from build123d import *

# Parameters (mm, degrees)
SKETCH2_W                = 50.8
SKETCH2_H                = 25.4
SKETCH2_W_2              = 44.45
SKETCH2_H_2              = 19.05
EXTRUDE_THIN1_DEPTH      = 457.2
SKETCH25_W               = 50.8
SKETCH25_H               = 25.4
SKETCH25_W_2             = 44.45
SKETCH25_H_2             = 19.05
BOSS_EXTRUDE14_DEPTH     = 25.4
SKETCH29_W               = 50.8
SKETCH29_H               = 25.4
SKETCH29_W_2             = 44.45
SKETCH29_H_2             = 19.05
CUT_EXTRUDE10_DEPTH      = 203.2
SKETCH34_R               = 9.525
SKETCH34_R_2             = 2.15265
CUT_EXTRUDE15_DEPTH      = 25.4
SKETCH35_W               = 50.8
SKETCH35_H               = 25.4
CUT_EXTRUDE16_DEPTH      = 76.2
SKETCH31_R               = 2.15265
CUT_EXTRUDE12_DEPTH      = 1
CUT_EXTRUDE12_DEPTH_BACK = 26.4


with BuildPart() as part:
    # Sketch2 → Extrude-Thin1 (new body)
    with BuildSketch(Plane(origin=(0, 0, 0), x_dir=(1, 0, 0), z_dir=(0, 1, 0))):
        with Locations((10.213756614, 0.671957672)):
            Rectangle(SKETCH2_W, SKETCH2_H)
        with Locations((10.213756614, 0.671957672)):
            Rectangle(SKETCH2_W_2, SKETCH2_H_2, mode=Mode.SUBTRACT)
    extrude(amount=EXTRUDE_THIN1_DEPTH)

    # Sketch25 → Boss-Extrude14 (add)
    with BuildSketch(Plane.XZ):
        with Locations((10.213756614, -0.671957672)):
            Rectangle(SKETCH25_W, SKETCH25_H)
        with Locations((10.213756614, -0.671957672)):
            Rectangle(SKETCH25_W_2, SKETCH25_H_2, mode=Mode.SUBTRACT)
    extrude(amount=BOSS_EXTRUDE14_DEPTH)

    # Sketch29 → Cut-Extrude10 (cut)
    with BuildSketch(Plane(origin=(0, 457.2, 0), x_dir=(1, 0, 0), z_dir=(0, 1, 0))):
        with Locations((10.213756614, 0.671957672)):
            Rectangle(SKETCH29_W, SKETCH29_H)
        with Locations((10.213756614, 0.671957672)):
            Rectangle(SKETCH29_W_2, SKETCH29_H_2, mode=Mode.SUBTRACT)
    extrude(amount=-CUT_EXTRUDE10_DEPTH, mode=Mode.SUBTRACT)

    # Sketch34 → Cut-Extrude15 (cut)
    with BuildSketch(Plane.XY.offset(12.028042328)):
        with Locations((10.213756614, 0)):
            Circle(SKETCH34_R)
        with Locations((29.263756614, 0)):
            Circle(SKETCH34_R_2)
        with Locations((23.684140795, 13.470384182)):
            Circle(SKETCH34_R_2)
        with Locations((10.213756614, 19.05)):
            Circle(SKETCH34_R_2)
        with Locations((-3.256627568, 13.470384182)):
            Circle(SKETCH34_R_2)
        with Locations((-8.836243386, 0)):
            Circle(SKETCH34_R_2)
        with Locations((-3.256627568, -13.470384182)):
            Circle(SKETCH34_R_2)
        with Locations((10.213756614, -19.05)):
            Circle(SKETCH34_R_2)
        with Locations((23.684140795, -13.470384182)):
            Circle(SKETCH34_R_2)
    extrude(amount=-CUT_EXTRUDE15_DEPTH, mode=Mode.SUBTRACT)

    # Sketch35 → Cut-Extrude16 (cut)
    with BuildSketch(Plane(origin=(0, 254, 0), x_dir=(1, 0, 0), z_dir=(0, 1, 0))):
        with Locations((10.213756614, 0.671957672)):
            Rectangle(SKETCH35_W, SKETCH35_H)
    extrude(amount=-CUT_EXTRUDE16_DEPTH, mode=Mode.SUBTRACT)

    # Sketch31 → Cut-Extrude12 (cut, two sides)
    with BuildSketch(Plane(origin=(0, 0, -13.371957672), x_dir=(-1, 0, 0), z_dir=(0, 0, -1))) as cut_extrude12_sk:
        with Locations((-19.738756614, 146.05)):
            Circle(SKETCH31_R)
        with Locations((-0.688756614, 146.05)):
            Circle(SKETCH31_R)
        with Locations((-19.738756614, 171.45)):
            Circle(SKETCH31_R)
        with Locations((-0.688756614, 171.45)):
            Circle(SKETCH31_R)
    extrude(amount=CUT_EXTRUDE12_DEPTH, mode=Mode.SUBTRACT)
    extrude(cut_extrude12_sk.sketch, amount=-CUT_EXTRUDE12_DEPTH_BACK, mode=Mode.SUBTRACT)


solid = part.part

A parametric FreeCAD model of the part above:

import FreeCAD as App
import Part
import Sketcher

V = App.Vector
Q = App.Units.Quantity


def add_polygon(sketch, points):
    """Adds a closed chain of lines whose ends are joined by coincident constraints."""
    first, n = sketch.GeometryCount, len(points)
    for a, b in zip(points, points[1:] + points[:1]):
        sketch.addGeometry(Part.LineSegment(App.Vector(*a, 0), App.Vector(*b, 0)), False)
    for i in range(n):
        sketch.addConstraint(Sketcher.Constraint("Coincident", first + i, 2, first + (i + 1) % n, 1))

doc = App.newDocument("Part")
body = doc.addObject("PartDesign::Body", "Body")

# Sketch on XZ plane
sketch1 = body.newObject("Sketcher::SketchObject", "Sketch")
sketch1.AttachmentSupport = (doc.getObject("XZ_Plane"), [""])
sketch1.MapMode = "FlatFace"
add_polygon(sketch1, [(-15.186243, -13.371958), (-15.186243, 12.028042), (35.613757, 12.028042), (35.613757, -13.371958)])  # lines 0-3
add_polygon(sketch1, [(32.438757, 8.853042), (-12.011243, 8.853042), (-12.011243, -10.196958), (32.438757, -10.196958)])  # lines 4-7
sketch1.addConstraint(Sketcher.Constraint("Vertical", 0))
sketch1.addConstraint(Sketcher.Constraint("Horizontal", 1))
sketch1.addConstraint(Sketcher.Constraint("Vertical", 2))
sketch1.addConstraint(Sketcher.Constraint("Horizontal", 3))
sketch1.addConstraint(Sketcher.Constraint("Horizontal", 4))
sketch1.addConstraint(Sketcher.Constraint("Vertical", 5))
sketch1.addConstraint(Sketcher.Constraint("Horizontal", 6))
sketch1.addConstraint(Sketcher.Constraint("Vertical", 7))
sketch1.addConstraint(Sketcher.Constraint("DistanceX", 1, 1, 1, 2, Q("2 in")))
sketch1.addConstraint(Sketcher.Constraint("DistanceY", 0, 1, 0, 2, Q("1 in")))
sketch1.addConstraint(Sketcher.Constraint("DistanceX", 4, 2, 4, 1, Q("1.75 in")))
sketch1.addConstraint(Sketcher.Constraint("DistanceY", 5, 2, 5, 1, Q("0.75 in")))
sketch1.addConstraint(Sketcher.Constraint("DistanceX", 0, 2, 4, 2, Q("0.125 in")))
sketch1.addConstraint(Sketcher.Constraint("DistanceY", 4, 2, 0, 2, Q("0.125 in")))
sketch1.addConstraint(Sketcher.Constraint("DistanceX", 0, 2, -1, 1, 15.186243))
sketch1.addConstraint(Sketcher.Constraint("DistanceY", -1, 1, 0, 2, 12.028042))
pad1 = body.newObject("PartDesign::Pad", "Pad")
pad1.Profile = sketch1
pad1.Length = Q("18 in")
pad1.Reversed = True

# Sketch on XZ plane
sketch2 = body.newObject("Sketcher::SketchObject", "Sketch001")
sketch2.AttachmentSupport = (doc.getObject("XZ_Plane"), [""])
sketch2.MapMode = "FlatFace"
add_polygon(sketch2, [(-15.186243, 12.028042), (-15.186243, -13.371958), (35.613757, -13.371958), (35.613757, 12.028042)])  # lines 0-3
add_polygon(sketch2, [(32.438757, -10.196958), (-12.011243, -10.196958), (-12.011243, 8.853042), (32.438757, 8.853042)])  # lines 4-7
sketch2.addConstraint(Sketcher.Constraint("Vertical", 0))
sketch2.addConstraint(Sketcher.Constraint("Horizontal", 1))
sketch2.addConstraint(Sketcher.Constraint("Vertical", 2))
sketch2.addConstraint(Sketcher.Constraint("Horizontal", 3))
sketch2.addConstraint(Sketcher.Constraint("Horizontal", 4))
sketch2.addConstraint(Sketcher.Constraint("Vertical", 5))
sketch2.addConstraint(Sketcher.Constraint("Horizontal", 6))
sketch2.addConstraint(Sketcher.Constraint("Vertical", 7))
sketch2.addConstraint(Sketcher.Constraint("DistanceX", 1, 1, 1, 2, Q("2 in")))
sketch2.addConstraint(Sketcher.Constraint("DistanceY", 0, 2, 0, 1, Q("1 in")))
sketch2.addConstraint(Sketcher.Constraint("DistanceX", 4, 2, 4, 1, Q("1.75 in")))
sketch2.addConstraint(Sketcher.Constraint("DistanceY", 5, 1, 5, 2, Q("0.75 in")))
sketch2.addConstraint(Sketcher.Constraint("DistanceX", 0, 2, 4, 2, Q("0.125 in")))
sketch2.addConstraint(Sketcher.Constraint("DistanceY", 0, 2, 4, 2, Q("0.125 in")))
sketch2.addConstraint(Sketcher.Constraint("DistanceX", 0, 2, -1, 1, 15.186243))
sketch2.addConstraint(Sketcher.Constraint("DistanceY", 0, 2, -1, 1, 13.371958))
pad2 = body.newObject("PartDesign::Pad", "Pad001")
pad2.Profile = sketch2
pad2.Length = Q("1 in")

# Sketch on XZ plane
sketch3 = body.newObject("Sketcher::SketchObject", "Sketch002")
sketch3.AttachmentSupport = (doc.getObject("XZ_Plane"), [""])
sketch3.MapMode = "FlatFace"
sketch3.AttachmentOffset = App.Placement(V(0, 0, -18 * 25.4), App.Rotation())
add_polygon(sketch3, [(-15.186243, -13.371958), (-15.186243, 12.028042), (35.613757, 12.028042), (35.613757, -13.371958)])  # lines 0-3
add_polygon(sketch3, [(32.438757, 8.853042), (-12.011243, 8.853042), (-12.011243, -10.196958), (32.438757, -10.196958)])  # lines 4-7
sketch3.addConstraint(Sketcher.Constraint("Vertical", 0))
sketch3.addConstraint(Sketcher.Constraint("Horizontal", 1))
sketch3.addConstraint(Sketcher.Constraint("Vertical", 2))
sketch3.addConstraint(Sketcher.Constraint("Horizontal", 3))
sketch3.addConstraint(Sketcher.Constraint("Horizontal", 4))
sketch3.addConstraint(Sketcher.Constraint("Vertical", 5))
sketch3.addConstraint(Sketcher.Constraint("Horizontal", 6))
sketch3.addConstraint(Sketcher.Constraint("Vertical", 7))
sketch3.addConstraint(Sketcher.Constraint("DistanceX", 1, 1, 1, 2, Q("2 in")))
sketch3.addConstraint(Sketcher.Constraint("DistanceY", 0, 1, 0, 2, Q("1 in")))
sketch3.addConstraint(Sketcher.Constraint("DistanceX", 4, 2, 4, 1, Q("1.75 in")))
sketch3.addConstraint(Sketcher.Constraint("DistanceY", 5, 2, 5, 1, Q("0.75 in")))
sketch3.addConstraint(Sketcher.Constraint("DistanceX", 0, 2, 4, 2, Q("0.125 in")))
sketch3.addConstraint(Sketcher.Constraint("DistanceY", 4, 2, 0, 2, Q("0.125 in")))
sketch3.addConstraint(Sketcher.Constraint("DistanceX", 0, 2, -1, 1, 15.186243))
sketch3.addConstraint(Sketcher.Constraint("DistanceY", -1, 1, 0, 2, 12.028042))
pocket1 = body.newObject("PartDesign::Pocket", "Pocket")
pocket1.Profile = sketch3
pocket1.Length = Q("8 in")
pocket1.Reversed = True

# Sketch on XY plane
sketch4 = body.newObject("Sketcher::SketchObject", "Sketch003")
sketch4.AttachmentSupport = (doc.getObject("XY_Plane"), [""])
sketch4.MapMode = "FlatFace"
sketch4.AttachmentOffset = App.Placement(V(0, 0, 12.028042), App.Rotation())
sketch4.addGeometry(Part.Circle(V(10.213757, 0, 0), V(0, 0, 1), 9.525), False)
sketch4.addGeometry(Part.Circle(V(29.263757, 0, 0), V(0, 0, 1), 2.15265), False)
sketch4.addGeometry(Part.Circle(V(23.684141, 13.470384, 0), V(0, 0, 1), 2.15265), False)
sketch4.addGeometry(Part.Circle(V(10.213757, 19.05, 0), V(0, 0, 1), 2.15265), False)
sketch4.addGeometry(Part.Circle(V(-3.256628, 13.470384, 0), V(0, 0, 1), 2.15265), False)
sketch4.addGeometry(Part.Circle(V(-8.836243, 0, 0), V(0, 0, 1), 2.15265), False)
sketch4.addGeometry(Part.Circle(V(-3.256628, -13.470384, 0), V(0, 0, 1), 2.15265), False)
sketch4.addGeometry(Part.Circle(V(10.213757, -19.05, 0), V(0, 0, 1), 2.15265), False)
sketch4.addGeometry(Part.Circle(V(23.684141, -13.470384, 0), V(0, 0, 1), 2.15265), False)
sketch4.addConstraint(Sketcher.Constraint("Equal", 1, 2))
sketch4.addConstraint(Sketcher.Constraint("Equal", 2, 3))
sketch4.addConstraint(Sketcher.Constraint("Equal", 3, 4))
sketch4.addConstraint(Sketcher.Constraint("Equal", 4, 5))
sketch4.addConstraint(Sketcher.Constraint("Equal", 5, 6))
sketch4.addConstraint(Sketcher.Constraint("Equal", 6, 7))
sketch4.addConstraint(Sketcher.Constraint("Equal", 7, 8))
sketch4.addConstraint(Sketcher.Constraint("Symmetric", 4, 3, 6, 3, -1))
sketch4.addConstraint(Sketcher.Constraint("Symmetric", 3, 3, 7, 3, -1))
sketch4.addConstraint(Sketcher.Constraint("Symmetric", 2, 3, 8, 3, -1))
sketch4.addConstraint(Sketcher.Constraint("PointOnObject", 0, 3, -1))
sketch4.addConstraint(Sketcher.Constraint("PointOnObject", 1, 3, -1))
sketch4.addConstraint(Sketcher.Constraint("PointOnObject", 5, 3, -1))
sketch4.addConstraint(Sketcher.Constraint("Horizontal", 2, 3, 4, 3))
sketch4.addConstraint(Sketcher.Constraint("Vertical", 0, 3, 3, 3))
sketch4.addConstraint(Sketcher.Constraint("Diameter", 0, Q("0.75 in")))
sketch4.addConstraint(Sketcher.Constraint("Diameter", 1, Q("0.1695 in")))
sketch4.addConstraint(Sketcher.Constraint("DistanceX", 5, 3, 1, 3, Q("1.5 in")))
sketch4.addConstraint(Sketcher.Constraint("DistanceY", -1, 1, 3, 3, Q("0.75 in")))
sketch4.addConstraint(Sketcher.Constraint("DistanceX", 0, 3, 1, 3, Q("0.75 in")))
sketch4.addConstraint(Sketcher.Constraint("DistanceX", -1, 1, 2, 3, 23.684141))
sketch4.addConstraint(Sketcher.Constraint("DistanceX", 4, 3, 2, 3, 26.940768))
sketch4.addConstraint(Sketcher.Constraint("DistanceY", 6, 3, 4, 3, 26.940768))
sketch4.addConstraint(Sketcher.Constraint("DistanceX", -1, 1, 0, 3, 10.213757))
pocket2 = body.newObject("PartDesign::Pocket", "Pocket001")
pocket2.Profile = sketch4
pocket2.Length = Q("1 in")

# Sketch on XZ plane
sketch5 = body.newObject("Sketcher::SketchObject", "Sketch004")
sketch5.AttachmentSupport = (doc.getObject("XZ_Plane"), [""])
sketch5.MapMode = "FlatFace"
sketch5.AttachmentOffset = App.Placement(V(0, 0, -10 * 25.4), App.Rotation())
add_polygon(sketch5, [(-15.186243, -13.371958), (-15.186243, 12.028042), (35.613757, 12.028042), (35.613757, -13.371958)])  # lines 0-3
sketch5.addConstraint(Sketcher.Constraint("Vertical", 0))
sketch5.addConstraint(Sketcher.Constraint("Horizontal", 1))
sketch5.addConstraint(Sketcher.Constraint("Vertical", 2))
sketch5.addConstraint(Sketcher.Constraint("Horizontal", 3))
sketch5.addConstraint(Sketcher.Constraint("DistanceX", 1, 1, 1, 2, Q("2 in")))
sketch5.addConstraint(Sketcher.Constraint("DistanceY", 0, 1, 0, 2, Q("1 in")))
sketch5.addConstraint(Sketcher.Constraint("DistanceX", 0, 2, -1, 1, 15.186243))
sketch5.addConstraint(Sketcher.Constraint("DistanceY", -1, 1, 0, 2, 12.028042))
pocket3 = body.newObject("PartDesign::Pocket", "Pocket002")
pocket3.Profile = sketch5
pocket3.Length = Q("3 in")
pocket3.Reversed = True

# Sketch on XY plane
sketch6 = body.newObject("Sketcher::SketchObject", "Sketch005")
sketch6.AttachmentSupport = (doc.getObject("XY_Plane"), [""])
sketch6.MapMode = "FlatFace"
sketch6.AttachmentOffset = App.Placement(V(0, 0, -13.371958), App.Rotation())
sketch6.addGeometry(Part.Circle(V(19.738757, 146.05, 0), V(0, 0, 1), 2.15265), False)
sketch6.addGeometry(Part.Circle(V(0.688757, 146.05, 0), V(0, 0, 1), 2.15265), False)
sketch6.addGeometry(Part.Circle(V(19.738757, 171.45, 0), V(0, 0, 1), 2.15265), False)
sketch6.addGeometry(Part.Circle(V(0.688757, 171.45, 0), V(0, 0, 1), 2.15265), False)
sketch6.addConstraint(Sketcher.Constraint("Equal", 0, 1))
sketch6.addConstraint(Sketcher.Constraint("Equal", 1, 2))
sketch6.addConstraint(Sketcher.Constraint("Equal", 2, 3))
sketch6.addConstraint(Sketcher.Constraint("Horizontal", 0, 3, 1, 3))
sketch6.addConstraint(Sketcher.Constraint("Horizontal", 2, 3, 3, 3))
sketch6.addConstraint(Sketcher.Constraint("Vertical", 0, 3, 2, 3))
sketch6.addConstraint(Sketcher.Constraint("Vertical", 1, 3, 3, 3))
sketch6.addConstraint(Sketcher.Constraint("DistanceY", 0, 3, 2, 3, Q("1 in")))
sketch6.addConstraint(Sketcher.Constraint("Diameter", 0, Q("0.1695 in")))
sketch6.addConstraint(Sketcher.Constraint("DistanceY", -1, 1, 0, 3, Q("5.75 in")))
sketch6.addConstraint(Sketcher.Constraint("DistanceX", 1, 3, 0, 3, Q("0.75 in")))
sketch6.addConstraint(Sketcher.Constraint("DistanceX", -1, 1, 0, 3, 19.738757))
pocket4 = body.newObject("PartDesign::Pocket", "Pocket003")
pocket4.Profile = sketch6
pocket4.Type = "ThroughAll"
pocket4.Midplane = True

doc.recompute()
